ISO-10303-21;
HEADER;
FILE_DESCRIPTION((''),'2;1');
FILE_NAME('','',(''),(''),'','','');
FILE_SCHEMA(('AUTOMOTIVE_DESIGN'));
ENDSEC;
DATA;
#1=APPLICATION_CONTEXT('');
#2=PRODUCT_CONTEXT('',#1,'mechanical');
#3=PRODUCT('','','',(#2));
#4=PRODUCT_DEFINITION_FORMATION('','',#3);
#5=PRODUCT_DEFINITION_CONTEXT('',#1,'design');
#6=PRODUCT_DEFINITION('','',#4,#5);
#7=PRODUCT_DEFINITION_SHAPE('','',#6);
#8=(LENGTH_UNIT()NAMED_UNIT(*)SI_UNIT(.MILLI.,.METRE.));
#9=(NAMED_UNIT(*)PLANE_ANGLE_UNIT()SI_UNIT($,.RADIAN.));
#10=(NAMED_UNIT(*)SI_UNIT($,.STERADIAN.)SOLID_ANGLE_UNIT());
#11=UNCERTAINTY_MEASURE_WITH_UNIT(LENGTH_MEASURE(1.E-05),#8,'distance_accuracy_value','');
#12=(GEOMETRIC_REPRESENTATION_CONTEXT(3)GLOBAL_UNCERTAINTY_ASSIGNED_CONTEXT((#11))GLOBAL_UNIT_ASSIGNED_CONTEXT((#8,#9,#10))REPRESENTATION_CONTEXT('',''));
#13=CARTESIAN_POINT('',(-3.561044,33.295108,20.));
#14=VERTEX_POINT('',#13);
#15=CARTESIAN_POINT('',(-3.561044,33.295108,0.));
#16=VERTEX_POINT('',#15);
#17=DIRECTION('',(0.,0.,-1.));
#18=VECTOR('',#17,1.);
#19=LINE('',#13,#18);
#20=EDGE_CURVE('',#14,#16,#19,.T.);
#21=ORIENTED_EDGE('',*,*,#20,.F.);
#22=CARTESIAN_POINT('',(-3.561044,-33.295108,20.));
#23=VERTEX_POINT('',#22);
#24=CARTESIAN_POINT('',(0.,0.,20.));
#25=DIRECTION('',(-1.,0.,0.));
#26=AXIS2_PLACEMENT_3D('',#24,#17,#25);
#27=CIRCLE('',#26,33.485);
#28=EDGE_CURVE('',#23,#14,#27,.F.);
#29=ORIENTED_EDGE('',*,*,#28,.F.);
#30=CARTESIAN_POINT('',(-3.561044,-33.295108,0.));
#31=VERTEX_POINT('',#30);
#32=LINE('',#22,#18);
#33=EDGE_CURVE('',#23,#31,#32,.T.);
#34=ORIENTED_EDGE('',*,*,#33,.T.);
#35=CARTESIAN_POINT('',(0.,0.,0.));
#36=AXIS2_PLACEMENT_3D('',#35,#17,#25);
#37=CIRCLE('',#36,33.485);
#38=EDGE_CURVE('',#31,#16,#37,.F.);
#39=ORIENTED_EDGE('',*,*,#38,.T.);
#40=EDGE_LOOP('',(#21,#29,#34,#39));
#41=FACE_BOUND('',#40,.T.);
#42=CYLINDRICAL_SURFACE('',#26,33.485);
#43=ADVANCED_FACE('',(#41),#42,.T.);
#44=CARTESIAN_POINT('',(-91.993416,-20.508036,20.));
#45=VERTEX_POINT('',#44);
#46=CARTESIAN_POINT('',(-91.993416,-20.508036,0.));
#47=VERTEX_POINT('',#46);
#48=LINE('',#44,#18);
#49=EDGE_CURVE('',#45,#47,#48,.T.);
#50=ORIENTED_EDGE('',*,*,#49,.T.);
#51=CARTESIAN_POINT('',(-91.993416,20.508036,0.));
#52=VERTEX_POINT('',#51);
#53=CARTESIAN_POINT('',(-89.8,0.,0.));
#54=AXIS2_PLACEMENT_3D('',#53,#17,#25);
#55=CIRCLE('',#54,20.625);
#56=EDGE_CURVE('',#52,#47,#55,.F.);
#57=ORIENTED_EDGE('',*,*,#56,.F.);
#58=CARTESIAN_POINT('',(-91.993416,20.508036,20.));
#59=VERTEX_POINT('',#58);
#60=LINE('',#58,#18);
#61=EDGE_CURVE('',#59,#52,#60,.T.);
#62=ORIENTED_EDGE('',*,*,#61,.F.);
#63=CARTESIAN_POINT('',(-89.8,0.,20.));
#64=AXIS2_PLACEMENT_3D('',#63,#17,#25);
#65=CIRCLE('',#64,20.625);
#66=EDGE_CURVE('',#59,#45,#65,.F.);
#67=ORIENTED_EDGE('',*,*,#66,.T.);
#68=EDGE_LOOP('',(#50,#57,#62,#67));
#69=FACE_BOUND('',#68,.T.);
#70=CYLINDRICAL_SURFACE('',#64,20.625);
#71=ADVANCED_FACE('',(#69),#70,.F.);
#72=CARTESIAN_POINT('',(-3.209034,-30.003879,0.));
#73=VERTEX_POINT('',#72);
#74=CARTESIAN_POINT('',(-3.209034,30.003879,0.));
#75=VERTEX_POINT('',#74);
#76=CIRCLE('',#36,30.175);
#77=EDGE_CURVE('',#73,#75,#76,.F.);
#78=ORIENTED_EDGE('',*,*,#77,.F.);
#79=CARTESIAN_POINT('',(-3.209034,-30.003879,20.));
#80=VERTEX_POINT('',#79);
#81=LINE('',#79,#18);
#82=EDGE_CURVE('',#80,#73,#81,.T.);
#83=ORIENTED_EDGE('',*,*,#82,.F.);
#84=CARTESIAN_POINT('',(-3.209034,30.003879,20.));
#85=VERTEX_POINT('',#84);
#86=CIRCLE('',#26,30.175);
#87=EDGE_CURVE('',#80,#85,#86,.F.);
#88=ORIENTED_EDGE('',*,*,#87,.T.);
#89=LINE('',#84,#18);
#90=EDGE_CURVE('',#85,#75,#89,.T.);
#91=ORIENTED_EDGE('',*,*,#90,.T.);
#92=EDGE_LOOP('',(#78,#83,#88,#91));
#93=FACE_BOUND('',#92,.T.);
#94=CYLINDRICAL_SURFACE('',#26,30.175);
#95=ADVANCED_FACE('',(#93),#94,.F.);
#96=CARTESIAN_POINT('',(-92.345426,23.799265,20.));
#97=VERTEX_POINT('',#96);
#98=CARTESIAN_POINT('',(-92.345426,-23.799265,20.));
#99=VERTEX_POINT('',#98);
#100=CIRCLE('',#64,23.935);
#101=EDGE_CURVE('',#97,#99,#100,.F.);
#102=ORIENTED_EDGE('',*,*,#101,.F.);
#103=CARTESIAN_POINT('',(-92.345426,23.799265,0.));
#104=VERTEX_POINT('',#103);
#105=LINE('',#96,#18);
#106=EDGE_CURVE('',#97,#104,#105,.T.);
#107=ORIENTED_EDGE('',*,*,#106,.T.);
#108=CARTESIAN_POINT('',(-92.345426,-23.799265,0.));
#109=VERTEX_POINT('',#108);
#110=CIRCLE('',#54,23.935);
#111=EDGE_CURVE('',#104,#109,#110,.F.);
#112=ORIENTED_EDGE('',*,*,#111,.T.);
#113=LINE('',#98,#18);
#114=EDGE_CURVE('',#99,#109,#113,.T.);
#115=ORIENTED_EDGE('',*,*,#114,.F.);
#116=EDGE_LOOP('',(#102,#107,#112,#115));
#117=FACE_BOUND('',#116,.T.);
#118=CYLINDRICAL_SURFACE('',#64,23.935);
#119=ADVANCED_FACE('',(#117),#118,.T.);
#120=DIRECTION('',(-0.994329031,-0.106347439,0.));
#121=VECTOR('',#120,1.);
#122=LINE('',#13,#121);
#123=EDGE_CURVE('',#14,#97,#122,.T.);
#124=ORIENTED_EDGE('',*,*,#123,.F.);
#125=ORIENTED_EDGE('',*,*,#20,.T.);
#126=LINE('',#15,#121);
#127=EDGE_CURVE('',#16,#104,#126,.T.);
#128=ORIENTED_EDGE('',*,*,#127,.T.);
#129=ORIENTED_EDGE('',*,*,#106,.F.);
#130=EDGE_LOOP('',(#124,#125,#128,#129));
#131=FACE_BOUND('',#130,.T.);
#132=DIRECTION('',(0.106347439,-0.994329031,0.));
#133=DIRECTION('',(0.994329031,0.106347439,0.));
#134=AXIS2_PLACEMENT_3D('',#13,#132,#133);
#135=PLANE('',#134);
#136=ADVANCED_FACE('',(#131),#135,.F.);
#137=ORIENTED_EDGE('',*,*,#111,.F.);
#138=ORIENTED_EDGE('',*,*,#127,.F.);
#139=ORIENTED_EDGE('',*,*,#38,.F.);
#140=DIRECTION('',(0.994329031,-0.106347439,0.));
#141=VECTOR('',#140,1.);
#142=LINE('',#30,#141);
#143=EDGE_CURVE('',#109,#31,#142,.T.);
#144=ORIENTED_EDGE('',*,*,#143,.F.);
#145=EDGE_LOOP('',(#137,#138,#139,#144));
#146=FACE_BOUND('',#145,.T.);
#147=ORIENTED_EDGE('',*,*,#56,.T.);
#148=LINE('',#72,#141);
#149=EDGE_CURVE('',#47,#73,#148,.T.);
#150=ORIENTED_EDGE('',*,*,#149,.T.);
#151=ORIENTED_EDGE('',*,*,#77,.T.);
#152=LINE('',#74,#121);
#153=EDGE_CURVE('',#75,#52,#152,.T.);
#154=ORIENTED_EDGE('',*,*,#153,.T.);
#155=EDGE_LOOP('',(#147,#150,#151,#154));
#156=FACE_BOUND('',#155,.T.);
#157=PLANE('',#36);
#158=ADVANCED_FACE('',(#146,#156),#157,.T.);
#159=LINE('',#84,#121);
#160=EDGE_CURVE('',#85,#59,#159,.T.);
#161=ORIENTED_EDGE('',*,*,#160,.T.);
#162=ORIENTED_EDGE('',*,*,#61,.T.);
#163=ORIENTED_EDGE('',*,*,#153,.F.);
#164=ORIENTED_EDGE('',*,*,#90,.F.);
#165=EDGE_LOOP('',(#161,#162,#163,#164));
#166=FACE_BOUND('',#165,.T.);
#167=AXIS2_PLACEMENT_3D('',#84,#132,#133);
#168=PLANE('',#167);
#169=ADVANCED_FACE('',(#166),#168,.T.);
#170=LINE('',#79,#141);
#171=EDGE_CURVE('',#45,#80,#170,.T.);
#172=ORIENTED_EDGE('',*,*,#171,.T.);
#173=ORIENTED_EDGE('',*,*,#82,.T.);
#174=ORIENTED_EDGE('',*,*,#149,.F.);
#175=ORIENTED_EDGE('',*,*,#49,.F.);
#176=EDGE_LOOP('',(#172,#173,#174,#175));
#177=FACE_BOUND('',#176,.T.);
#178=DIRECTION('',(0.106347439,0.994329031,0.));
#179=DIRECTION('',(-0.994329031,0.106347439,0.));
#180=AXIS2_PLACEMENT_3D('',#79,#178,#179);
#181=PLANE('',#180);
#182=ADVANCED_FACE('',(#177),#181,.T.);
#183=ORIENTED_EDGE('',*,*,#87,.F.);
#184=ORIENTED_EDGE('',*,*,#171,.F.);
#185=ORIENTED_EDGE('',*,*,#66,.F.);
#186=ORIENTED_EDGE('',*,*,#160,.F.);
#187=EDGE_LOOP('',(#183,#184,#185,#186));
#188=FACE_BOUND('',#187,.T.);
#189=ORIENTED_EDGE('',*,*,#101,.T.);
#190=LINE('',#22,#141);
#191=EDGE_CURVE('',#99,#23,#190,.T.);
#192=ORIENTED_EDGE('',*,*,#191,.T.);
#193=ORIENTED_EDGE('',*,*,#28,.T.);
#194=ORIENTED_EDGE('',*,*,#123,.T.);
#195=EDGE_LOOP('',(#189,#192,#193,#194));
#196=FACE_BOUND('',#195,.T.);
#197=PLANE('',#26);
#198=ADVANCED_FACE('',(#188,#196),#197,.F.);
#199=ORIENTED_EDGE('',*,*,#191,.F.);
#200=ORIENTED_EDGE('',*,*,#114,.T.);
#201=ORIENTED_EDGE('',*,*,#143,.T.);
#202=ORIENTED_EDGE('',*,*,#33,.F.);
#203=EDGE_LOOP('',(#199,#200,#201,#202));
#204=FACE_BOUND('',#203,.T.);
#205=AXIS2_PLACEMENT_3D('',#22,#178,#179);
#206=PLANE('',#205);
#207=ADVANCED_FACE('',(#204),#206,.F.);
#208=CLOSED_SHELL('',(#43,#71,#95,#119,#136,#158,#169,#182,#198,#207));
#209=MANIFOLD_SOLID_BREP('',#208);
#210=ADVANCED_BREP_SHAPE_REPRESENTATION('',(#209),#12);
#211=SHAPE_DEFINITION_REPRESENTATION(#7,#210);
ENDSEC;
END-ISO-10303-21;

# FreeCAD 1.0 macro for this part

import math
import FreeCAD as App
import Part
import Sketcher

V = App.Vector
Q = App.Units.Quantity

doc = App.newDocument("Part")
params = doc.addObject("Spreadsheet::Sheet", "Params")
for row, (alias, value) in enumerate([
    ("pad1_length", "20 mm"),
], start=1):
    params.set(f"A{row}", alias)
    params.set(f"B{row}", "=" + value)
    params.setAlias(f"B{row}", alias)

body = doc.addObject("PartDesign::Body", "Body")

sketch1 = doc.addObject("Sketcher::SketchObject", "Sketch")
body.addObject(sketch1)
sketch1.AttachmentSupport = (doc.XY_Plane, [""])
sketch1.MapMode = "FlatFace"
sketch1.addGeometry(Part.LineSegment(V(-4, 33, 0), V(-92, 24, 0)), False)
sketch1.addGeometry(Part.ArcOfCircle(Part.Circle(V(-90, 0, 0), V(0, 0, 1), 24), math.radians(96), math.radians(264)), False)
sketch1.addGeometry(Part.LineSegment(V(-92, -24, 0), V(-4, -33, 0)), False)
sketch1.addGeometry(Part.ArcOfCircle(Part.Circle(V(0, 0, 0), V(0, 0, 1), 33), math.radians(-96), math.radians(96)), False)
sketch1.addGeometry(Part.LineSegment(V(-92, 21, 0), V(-3, 30, 0)), False)
sketch1.addGeometry(Part.ArcOfCircle(Part.Circle(V(0, 0, 0), V(0, 0, 1), 30), math.radians(-96), math.radians(96)), False)
sketch1.addGeometry(Part.LineSegment(V(-3, -30, 0), V(-92, -21, 0)), False)
sketch1.addGeometry(Part.ArcOfCircle(Part.Circle(V(-90, 0, 0), V(0, 0, 1), 21), math.radians(96), math.radians(264)), False)
sketch1.addConstraint(Sketcher.Constraint("Tangent", 0, 2, 1, 1))
sketch1.addConstraint(Sketcher.Constraint("Tangent", 1, 2, 2, 1))
sketch1.addConstraint(Sketcher.Constraint("Tangent", 2, 2, 3, 1))
sketch1.addConstraint(Sketcher.Constraint("Tangent", 3, 2, 0, 1))
sketch1.addConstraint(Sketcher.Constraint("Tangent", 4, 2, 5, 2))
sketch1.addConstraint(Sketcher.Constraint("Tangent", 5, 1, 6, 1))
sketch1.addConstraint(Sketcher.Constraint("Tangent", 6, 2, 7, 2))
sketch1.addConstraint(Sketcher.Constraint("Tangent", 7, 1, 4, 1))
sketch1.addConstraint(Sketcher.Constraint("Coincident", 3, 3, -1, 1))
sketch1.addConstraint(Sketcher.Constraint("Coincident", 5, 3, -1, 1))
sketch1.addConstraint(Sketcher.Constraint("Coincident", 7, 3, 1, 3))
sketch1.addConstraint(Sketcher.Constraint("PointOnObject", 1, 3, -1))
sketch1.addConstraint(Sketcher.Constraint("Parallel", 0, 4))
sketch1.addConstraint(Sketcher.Constraint("Radius", 1, Q("23.935 mm")))
sketch1.addConstraint(Sketcher.Constraint("Radius", 3, Q("33.485 mm")))
sketch1.addConstraint(Sketcher.Constraint("Radius", 5, Q("30.175 mm")))
sketch1.addConstraint(Sketcher.Constraint("DistanceX", 1, 3, -1, 1, Q("89.8 mm")))
pad1 = doc.addObject("PartDesign::Pad", "Pad")
body.addObject(pad1)
pad1.Profile = sketch1
pad1.setExpression("Length", "Params.pad1_length")

doc.recompute()
